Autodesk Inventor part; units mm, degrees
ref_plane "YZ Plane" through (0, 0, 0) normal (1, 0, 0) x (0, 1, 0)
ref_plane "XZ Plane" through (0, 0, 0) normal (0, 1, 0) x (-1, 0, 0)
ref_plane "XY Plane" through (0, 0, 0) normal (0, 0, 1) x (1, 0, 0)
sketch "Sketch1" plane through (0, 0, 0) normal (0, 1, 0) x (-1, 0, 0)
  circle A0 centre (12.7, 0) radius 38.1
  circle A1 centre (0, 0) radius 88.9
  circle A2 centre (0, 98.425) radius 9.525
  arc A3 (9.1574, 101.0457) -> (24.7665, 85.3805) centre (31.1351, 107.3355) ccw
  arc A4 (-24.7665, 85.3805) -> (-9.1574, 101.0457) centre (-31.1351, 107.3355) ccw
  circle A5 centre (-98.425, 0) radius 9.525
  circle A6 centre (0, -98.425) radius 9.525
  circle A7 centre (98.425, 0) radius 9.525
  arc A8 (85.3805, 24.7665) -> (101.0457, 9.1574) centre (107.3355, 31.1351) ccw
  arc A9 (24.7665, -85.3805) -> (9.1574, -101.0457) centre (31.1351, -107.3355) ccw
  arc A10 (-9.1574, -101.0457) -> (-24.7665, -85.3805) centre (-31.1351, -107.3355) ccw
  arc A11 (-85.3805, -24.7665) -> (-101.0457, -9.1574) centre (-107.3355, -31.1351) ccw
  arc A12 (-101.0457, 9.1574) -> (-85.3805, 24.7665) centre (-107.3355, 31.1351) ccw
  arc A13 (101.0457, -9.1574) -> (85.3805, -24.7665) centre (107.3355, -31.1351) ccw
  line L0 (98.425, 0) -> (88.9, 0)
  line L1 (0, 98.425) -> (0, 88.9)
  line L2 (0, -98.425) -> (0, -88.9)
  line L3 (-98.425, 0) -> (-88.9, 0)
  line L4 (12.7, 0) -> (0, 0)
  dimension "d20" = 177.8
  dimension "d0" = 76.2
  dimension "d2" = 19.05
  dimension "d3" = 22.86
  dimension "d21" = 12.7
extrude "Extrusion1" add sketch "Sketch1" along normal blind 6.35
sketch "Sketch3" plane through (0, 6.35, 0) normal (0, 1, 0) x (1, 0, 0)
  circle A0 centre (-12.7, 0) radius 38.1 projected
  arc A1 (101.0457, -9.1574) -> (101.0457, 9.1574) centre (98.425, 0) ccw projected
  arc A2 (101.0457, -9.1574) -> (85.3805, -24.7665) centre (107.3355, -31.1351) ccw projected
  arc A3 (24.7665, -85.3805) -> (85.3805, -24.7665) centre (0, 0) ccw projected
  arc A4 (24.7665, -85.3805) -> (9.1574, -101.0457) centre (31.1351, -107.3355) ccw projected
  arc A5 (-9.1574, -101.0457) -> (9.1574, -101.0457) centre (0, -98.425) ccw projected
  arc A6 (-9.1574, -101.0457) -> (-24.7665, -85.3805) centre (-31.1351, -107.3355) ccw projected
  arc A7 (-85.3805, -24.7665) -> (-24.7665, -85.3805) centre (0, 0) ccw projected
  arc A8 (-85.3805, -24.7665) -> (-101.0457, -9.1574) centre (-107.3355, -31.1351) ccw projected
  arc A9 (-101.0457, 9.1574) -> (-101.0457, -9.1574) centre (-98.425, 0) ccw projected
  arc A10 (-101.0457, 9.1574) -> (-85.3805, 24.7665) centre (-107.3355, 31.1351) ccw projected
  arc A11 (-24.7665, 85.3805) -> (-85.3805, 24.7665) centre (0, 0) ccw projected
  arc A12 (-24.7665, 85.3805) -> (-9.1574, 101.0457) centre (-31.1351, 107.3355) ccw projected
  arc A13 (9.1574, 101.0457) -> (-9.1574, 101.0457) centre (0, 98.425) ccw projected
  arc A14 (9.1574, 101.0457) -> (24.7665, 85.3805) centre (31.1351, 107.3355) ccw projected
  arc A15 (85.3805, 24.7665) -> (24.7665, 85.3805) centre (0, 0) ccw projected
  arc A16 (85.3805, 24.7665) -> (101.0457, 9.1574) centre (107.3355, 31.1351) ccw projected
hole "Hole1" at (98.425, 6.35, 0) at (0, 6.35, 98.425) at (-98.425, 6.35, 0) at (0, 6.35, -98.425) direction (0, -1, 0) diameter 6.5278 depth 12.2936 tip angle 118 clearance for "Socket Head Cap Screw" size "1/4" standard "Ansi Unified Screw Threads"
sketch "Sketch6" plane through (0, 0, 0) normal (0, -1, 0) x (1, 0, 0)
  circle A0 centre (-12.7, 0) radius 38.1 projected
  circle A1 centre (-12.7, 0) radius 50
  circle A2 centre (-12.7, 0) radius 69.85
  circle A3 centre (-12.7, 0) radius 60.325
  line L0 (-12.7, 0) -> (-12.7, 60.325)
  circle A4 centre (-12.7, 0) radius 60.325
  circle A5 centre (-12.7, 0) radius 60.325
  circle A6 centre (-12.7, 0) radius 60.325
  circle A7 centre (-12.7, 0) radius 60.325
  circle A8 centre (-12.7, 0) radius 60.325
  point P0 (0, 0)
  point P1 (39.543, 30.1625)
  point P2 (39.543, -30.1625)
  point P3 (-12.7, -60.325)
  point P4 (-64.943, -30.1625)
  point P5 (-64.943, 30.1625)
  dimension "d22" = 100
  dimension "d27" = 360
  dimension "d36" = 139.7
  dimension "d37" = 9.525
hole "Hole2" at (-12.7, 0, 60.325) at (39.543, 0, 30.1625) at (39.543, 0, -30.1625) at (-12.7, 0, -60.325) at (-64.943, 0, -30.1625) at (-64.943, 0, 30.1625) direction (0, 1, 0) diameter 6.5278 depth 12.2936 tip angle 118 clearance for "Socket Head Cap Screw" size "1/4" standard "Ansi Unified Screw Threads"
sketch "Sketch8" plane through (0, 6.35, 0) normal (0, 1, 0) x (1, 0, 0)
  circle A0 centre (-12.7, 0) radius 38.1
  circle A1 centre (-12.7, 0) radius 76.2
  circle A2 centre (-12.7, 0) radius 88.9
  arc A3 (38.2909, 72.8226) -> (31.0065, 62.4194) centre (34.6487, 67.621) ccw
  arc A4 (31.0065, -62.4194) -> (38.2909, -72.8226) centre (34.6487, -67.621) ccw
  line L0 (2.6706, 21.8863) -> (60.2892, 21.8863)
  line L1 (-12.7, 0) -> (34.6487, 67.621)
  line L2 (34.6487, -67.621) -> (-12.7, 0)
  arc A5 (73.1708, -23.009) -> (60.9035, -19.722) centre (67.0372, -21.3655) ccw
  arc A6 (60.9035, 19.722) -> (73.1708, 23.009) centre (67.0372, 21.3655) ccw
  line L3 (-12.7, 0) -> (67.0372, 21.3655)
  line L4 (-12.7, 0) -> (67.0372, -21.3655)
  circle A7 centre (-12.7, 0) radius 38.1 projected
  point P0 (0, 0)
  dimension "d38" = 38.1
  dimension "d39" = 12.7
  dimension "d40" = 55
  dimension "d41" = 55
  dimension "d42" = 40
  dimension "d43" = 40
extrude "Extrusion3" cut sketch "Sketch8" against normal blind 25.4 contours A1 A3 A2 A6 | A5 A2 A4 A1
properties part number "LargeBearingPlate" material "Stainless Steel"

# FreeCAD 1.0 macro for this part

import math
import FreeCAD as App
import Part
import Sketcher
Q = App.Units.Quantity

doc = App.newDocument("Part")
body = doc.addObject("PartDesign::Body", "Body")

# Sketch on XZ plane
sketch1 = body.newObject("Sketcher::SketchObject", "Sketch")
sketch1.AttachmentSupport = (doc.getObject("XZ_Plane"), [""])
sketch1.MapMode = "FlatFace"
sketch1.addGeometry([
    Part.ArcOfCircle(Part.Circle(App.Vector(0, 0, 0), App.Vector(0, 0, 1), 88.9), math.radians(-163.824031), math.radians(-106.175969)),  # 0
    Part.ArcOfCircle(Part.Circle(App.Vector(-107.3355, -31.1351, 0), App.Vector(0, 0, 1), 22.860028), math.radians(16.176131), math.radians(74.029403)),  # 1
    Part.ArcOfCircle(Part.Circle(App.Vector(-98.425, 0, 0), App.Vector(0, 0, 1), 9.525), math.radians(105.970266), math.radians(254.029734)),  # 2
    Part.ArcOfCircle(Part.Circle(App.Vector(-107.3355, 31.1351, 0), App.Vector(0, 0, 1), 22.860033), math.radians(-74.029403), math.radians(-16.176131)),  # 3
    Part.ArcOfCircle(Part.Circle(App.Vector(0, 0, 0), App.Vector(0, 0, 1), 88.9), math.radians(106.175969), math.radians(163.824031)),  # 4
    Part.ArcOfCircle(Part.Circle(App.Vector(-31.1351, 107.3355, 0), App.Vector(0, 0, 1), 22.860028), math.radians(-73.823869), math.radians(-15.970597)),  # 5
    Part.ArcOfCircle(Part.Circle(App.Vector(0, 98.425, 0), App.Vector(0, 0, 1), 9.525), math.radians(15.970266), math.radians(164.029734)),  # 6
    Part.ArcOfCircle(Part.Circle(App.Vector(31.1351, 107.3355, 0), App.Vector(0, 0, 1), 22.860033), math.radians(-164.029403), math.radians(-106.176131)),  # 7
    Part.ArcOfCircle(Part.Circle(App.Vector(0, 0, 0), App.Vector(0, 0, 1), 88.9), math.radians(16.175969), math.radians(73.824031)),  # 8
    Part.ArcOfCircle(Part.Circle(App.Vector(107.3355, 31.1351, 0), App.Vector(0, 0, 1), 22.860028), math.radians(-163.823869), math.radians(-105.970597)),  # 9
    Part.ArcOfCircle(Part.Circle(App.Vector(98.425, 0, 0), App.Vector(0, 0, 1), 9.525), math.radians(-74.029734), math.radians(74.029734)),  # 10
    Part.ArcOfCircle(Part.Circle(App.Vector(107.3355, -31.1351, 0), App.Vector(0, 0, 1), 22.860033), math.radians(105.970597), math.radians(163.823869)),  # 11
    Part.ArcOfCircle(Part.Circle(App.Vector(0, 0, 0), App.Vector(0, 0, 1), 88.9), math.radians(-73.824031), math.radians(-16.175969)),  # 12
    Part.ArcOfCircle(Part.Circle(App.Vector(31.1351, -107.3355, 0), App.Vector(0, 0, 1), 22.860028), math.radians(106.176131), math.radians(164.029403)),  # 13
    Part.ArcOfCircle(Part.Circle(App.Vector(0, -98.425, 0), App.Vector(0, 0, 1), 9.525), math.radians(-164.029734), math.radians(-15.970266)),  # 14
    Part.ArcOfCircle(Part.Circle(App.Vector(-31.1351, -107.3355, 0), App.Vector(0, 0, 1), 22.860033), math.radians(15.970597), math.radians(73.823869)),  # 15
    Part.Circle(App.Vector(-12.7, 0, 0), App.Vector(0, 0, 1), 38.1),  # 16
], False)
sketch1.addConstraint([
    Sketcher.Constraint("Tangent", 0, 1, 1, 1),
    Sketcher.Constraint("Tangent", 1, 2, 2, 2),
    Sketcher.Constraint("Tangent", 2, 1, 3, 1),
    Sketcher.Constraint("Tangent", 3, 2, 4, 2),
    Sketcher.Constraint("Tangent", 4, 1, 5, 1),
    Sketcher.Constraint("Tangent", 5, 2, 6, 2),
    Sketcher.Constraint("Tangent", 6, 1, 7, 1),
    Sketcher.Constraint("Tangent", 7, 2, 8, 2),
    Sketcher.Constraint("Tangent", 8, 1, 9, 1),
    Sketcher.Constraint("Tangent", 9, 2, 10, 2),
    Sketcher.Constraint("Tangent", 10, 1, 11, 1),
    Sketcher.Constraint("Tangent", 11, 2, 12, 2),
    Sketcher.Constraint("Tangent", 12, 1, 13, 1),
    Sketcher.Constraint("Tangent", 13, 2, 14, 2),
    Sketcher.Constraint("Tangent", 14, 1, 15, 1),
    Sketcher.Constraint("Tangent", 15, 2, 0, 2),
    Sketcher.Constraint("Coincident", 0, 3, -1, 1),
    Sketcher.Constraint("Coincident", 4, 3, -1, 1),
    Sketcher.Constraint("Coincident", 8, 3, -1, 1),
    Sketcher.Constraint("Coincident", 12, 3, -1, 1),
    Sketcher.Constraint("Equal", 1, 3),
    Sketcher.Constraint("Equal", 0, 4),
    Sketcher.Constraint("Equal", 3, 5),
    Sketcher.Constraint("Equal", 2, 6),
    Sketcher.Constraint("Equal", 5, 7),
    Sketcher.Constraint("Equal", 4, 8),
    Sketcher.Constraint("Equal", 7, 9),
    Sketcher.Constraint("Equal", 6, 10),
    Sketcher.Constraint("Equal", 9, 11),
    Sketcher.Constraint("Equal", 8, 12),
    Sketcher.Constraint("Equal", 11, 13),
    Sketcher.Constraint("Equal", 10, 14),
    Sketcher.Constraint("Equal", 13, 15),
    Sketcher.Constraint("Symmetric", 2, 3, 10, 3, -1, 1),
    Sketcher.Constraint("Symmetric", 6, 3, 14, 3, -1, 1),
    Sketcher.Constraint("PointOnObject", 2, 3, -1),
    Sketcher.Constraint("PointOnObject", 6, 3, -2),
    Sketcher.Constraint("PointOnObject", 16, 3, -1),
    Sketcher.Constraint("Diameter", 16, Q("3 in")),
    Sketcher.Constraint("Radius", 0, Q("3.5 in")),
    Sketcher.Constraint("Radius", 1, Q("0.9 in")),
    Sketcher.Constraint("Radius", 2, Q("0.375 in")),
    Sketcher.Constraint("DistanceX", 16, 3, -1, 1, Q("0.5 in")),
    Sketcher.Constraint("DistanceX", 3, 3, 5, 3, Q("76.2004 mm")),
    Sketcher.Constraint("DistanceY", 3, 3, 5, 3, Q("76.2004 mm")),
])
pad1 = body.newObject("PartDesign::Pad", "Pad")
pad1.Profile = sketch1
pad1.Length = Q("0.25 in")
pad1.Reversed = True

# Sketch on XZ plane
sketch2 = body.newObject("Sketcher::SketchObject", "Sketch001")
sketch2.AttachmentSupport = (doc.getObject("XZ_Plane"), [""])
sketch2.MapMode = "FlatFace"
sketch2.AttachmentOffset = App.Placement(App.Vector(0, 0, -0.25 * 25.4), App.Rotation())
sketch2.addGeometry([
    Part.Circle(App.Vector(98.425, 0, 0), App.Vector(0, 0, 1), 3.2639),
    Part.Circle(App.Vector(0, 98.425, 0), App.Vector(0, 0, 1), 3.2639),
    Part.Circle(App.Vector(-98.425, 0, 0), App.Vector(0, 0, 1), 3.2639),
    Part.Circle(App.Vector(0, -98.425, 0), App.Vector(0, 0, 1), 3.2639),
], False)
sketch2.addConstraint([
    Sketcher.Constraint("Equal", 0, 1),
    Sketcher.Constraint("Equal", 1, 2),
    Sketcher.Constraint("Equal", 2, 3),
    Sketcher.Constraint("Symmetric", 0, 3, 2, 3, -1, 1),
    Sketcher.Constraint("Symmetric", 1, 3, 3, 3, -1, 1),
    Sketcher.Constraint("PointOnObject", 0, 3, -1),
    Sketcher.Constraint("PointOnObject", 1, 3, -2),
    Sketcher.Constraint("Diameter", 0, Q("0.257 in")),
    Sketcher.Constraint("DistanceX", 2, 3, 0, 3, Q("7.75 in")),
    Sketcher.Constraint("DistanceY", 3, 3, 1, 3, Q("7.75 in")),
])
doc.recompute()
hole = body.newObject("PartDesign::Hole", "Hole")
hole.Profile = sketch2
hole.ThreadType = "None"
hole.Diameter = Q("0.257 in")
hole.DepthType = "Dimension"
hole.Depth = Q("0.484 in")
hole.DrillPoint = "Angled"
hole.DrillPointAngle = 118
hole.Reversed = True

# Sketch on XZ plane
sketch3 = body.newObject("Sketcher::SketchObject", "Sketch002")
sketch3.AttachmentSupport = (doc.getObject("XZ_Plane"), [""])
sketch3.MapMode = "FlatFace"
sketch3.addGeometry([
    Part.Circle(App.Vector(-12.7, 60.325, 0), App.Vector(0, 0, 1), 3.2639),  # 0
    Part.Circle(App.Vector(39.543, 30.1625, 0), App.Vector(0, 0, 1), 3.2639),  # 1
    Part.Circle(App.Vector(39.543, -30.1625, 0), App.Vector(0, 0, 1), 3.2639),  # 2
    Part.Circle(App.Vector(-12.7, -60.325, 0), App.Vector(0, 0, 1), 3.2639),  # 3
    Part.Circle(App.Vector(-64.943, -30.1625, 0), App.Vector(0, 0, 1), 3.2639),  # 4
    Part.Circle(App.Vector(-64.943, 30.1625, 0), App.Vector(0, 0, 1), 3.2639),  # 5
], False)
sketch3.addConstraint([
    Sketcher.Constraint("Equal", 0, 1),
    Sketcher.Constraint("Equal", 1, 2),
    Sketcher.Constraint("Equal", 2, 3),
    Sketcher.Constraint("Equal", 3, 4),
    Sketcher.Constraint("Equal", 4, 5),
    Sketcher.Constraint("Symmetric", 1, 3, 2, 3, -1),
    Sketcher.Constraint("Symmetric", 0, 3, 3, 3, -1),
    Sketcher.Constraint("Symmetric", 4, 3, 5, 3, -1),
    Sketcher.Constraint("Horizontal", 2, 3, 4, 3),
    Sketcher.Constraint("Diameter", 0, Q("0.257 in")),
    Sketcher.Constraint("DistanceX", 0, 3, -1, 1, Q("0.5 in")),
    Sketcher.Constraint("DistanceY", 3, 3, 0, 3, Q("4.75 in")),
    Sketcher.Constraint("DistanceY", -1, 1, 1, 3, Q("1.1875 in")),
    Sketcher.Constraint("DistanceX", -1, 1, 1, 3, Q("1.5568 in")),
    Sketcher.Constraint("DistanceX", 4, 3, -1, 1, Q("2.5568 in")),
])
doc.recompute()
hole2 = body.newObject("PartDesign::Hole", "Hole001")
hole2.Profile = sketch3
hole2.ThreadType = "None"
hole2.Diameter = Q("0.257 in")
hole2.DepthType = "Dimension"
hole2.Depth = Q("0.484 in")
hole2.DrillPoint = "Angled"
hole2.DrillPointAngle = 118

# Sketch on XZ plane
sketch4 = body.newObject("Sketcher::SketchObject", "Sketch003")
sketch4.AttachmentSupport = (doc.getObject("XZ_Plane"), [""])
sketch4.MapMode = "FlatFace"
sketch4.AttachmentOffset = App.Placement(App.Vector(0, 0, -0.25 * 25.4), App.Rotation())
sketch4.addGeometry([
    Part.ArcOfCircle(Part.Circle(App.Vector(-12.7, 0, 0), App.Vector(0, 0, 1), 76.2), math.radians(-55.000021), math.radians(-15.000001)),  # 0
    Part.ArcOfCircle(Part.Circle(App.Vector(67.0372, -21.3655, 0), App.Vector(0, 0, 1), 6.350068), math.radians(-15.00006), math.radians(165.000174)),  # 1
    Part.ArcOfCircle(Part.Circle(App.Vector(-12.7, 0, 0), App.Vector(0, 0, 1), 88.9), math.radians(-55.000018), math.radians(-14.999993)),  # 2
    Part.ArcOfCircle(Part.Circle(App.Vector(34.6487, -67.621, 0), App.Vector(0, 0, 1), 6.349981), math.radians(125.000003), math.radians(305.000003)),  # 3
    Part.ArcOfCircle(Part.Circle(App.Vector(67.0372, 21.3655, 0), App.Vector(0, 0, 1), 6.349972), math.radians(-165.000174), math.radians(15.00006)),  # 4
    Part.ArcOfCircle(Part.Circle(App.Vector(-12.7, 0, 0), App.Vector(0, 0, 1), 76.2), math.radians(15.000001), math.radians(55.000021)),  # 5
    Part.ArcOfCircle(Part.Circle(App.Vector(34.6487, 67.621, 0), App.Vector(0, 0, 1), 6.349981), math.radians(54.999997), math.radians(234.999997)),  # 6
    Part.ArcOfCircle(Part.Circle(App.Vector(-12.7, 0, 0), App.Vector(0, 0, 1), 88.9), math.radians(14.999993), math.radians(55.000018)),  # 7
], False)
sketch4.addConstraint([
    Sketcher.Constraint("Tangent", 0, 2, 1, 2),
    Sketcher.Constraint("Tangent", 1, 1, 2, 2),
    Sketcher.Constraint("Tangent", 2, 1, 3, 2),
    Sketcher.Constraint("Tangent", 3, 1, 0, 1),
    Sketcher.Constraint("Tangent", 4, 1, 5, 1),
    Sketcher.Constraint("Tangent", 5, 2, 6, 2),
    Sketcher.Constraint("Tangent", 6, 1, 7, 2),
    Sketcher.Constraint("Tangent", 7, 1, 4, 2),
    Sketcher.Constraint("Coincident", 2, 3, 0, 3),
    Sketcher.Constraint("Coincident", 5, 3, 0, 3),
    Sketcher.Constraint("Coincident", 7, 3, 0, 3),
    Sketcher.Constraint("Equal", 3, 4),
    Sketcher.Constraint("Equal", 0, 5),
    Sketcher.Constraint("Symmetric", 1, 3, 4, 3, -1),
    Sketcher.Constraint("Vertical", 3, 3, 6, 3),
    Sketcher.Constraint("Radius", 1, Q("0.25 in")),
    Sketcher.Constraint("Radius", 0, Q("3 in")),
    Sketcher.Constraint("DistanceX", 0, 3, -1, 1, Q("0.5 in")),
    Sketcher.Constraint("DistanceY", 3, 1, 0, 2, Q("1.681 in")),
    Sketcher.Constraint("DistanceY", 3, 3, 4, 3, Q("3.5034 in")),
])
pocket1 = body.newObject("PartDesign::Pocket", "Pocket")
pocket1.Profile = sketch4
pocket1.Length = Q("1 in")
pocket1.Reversed = True

doc.recompute()
